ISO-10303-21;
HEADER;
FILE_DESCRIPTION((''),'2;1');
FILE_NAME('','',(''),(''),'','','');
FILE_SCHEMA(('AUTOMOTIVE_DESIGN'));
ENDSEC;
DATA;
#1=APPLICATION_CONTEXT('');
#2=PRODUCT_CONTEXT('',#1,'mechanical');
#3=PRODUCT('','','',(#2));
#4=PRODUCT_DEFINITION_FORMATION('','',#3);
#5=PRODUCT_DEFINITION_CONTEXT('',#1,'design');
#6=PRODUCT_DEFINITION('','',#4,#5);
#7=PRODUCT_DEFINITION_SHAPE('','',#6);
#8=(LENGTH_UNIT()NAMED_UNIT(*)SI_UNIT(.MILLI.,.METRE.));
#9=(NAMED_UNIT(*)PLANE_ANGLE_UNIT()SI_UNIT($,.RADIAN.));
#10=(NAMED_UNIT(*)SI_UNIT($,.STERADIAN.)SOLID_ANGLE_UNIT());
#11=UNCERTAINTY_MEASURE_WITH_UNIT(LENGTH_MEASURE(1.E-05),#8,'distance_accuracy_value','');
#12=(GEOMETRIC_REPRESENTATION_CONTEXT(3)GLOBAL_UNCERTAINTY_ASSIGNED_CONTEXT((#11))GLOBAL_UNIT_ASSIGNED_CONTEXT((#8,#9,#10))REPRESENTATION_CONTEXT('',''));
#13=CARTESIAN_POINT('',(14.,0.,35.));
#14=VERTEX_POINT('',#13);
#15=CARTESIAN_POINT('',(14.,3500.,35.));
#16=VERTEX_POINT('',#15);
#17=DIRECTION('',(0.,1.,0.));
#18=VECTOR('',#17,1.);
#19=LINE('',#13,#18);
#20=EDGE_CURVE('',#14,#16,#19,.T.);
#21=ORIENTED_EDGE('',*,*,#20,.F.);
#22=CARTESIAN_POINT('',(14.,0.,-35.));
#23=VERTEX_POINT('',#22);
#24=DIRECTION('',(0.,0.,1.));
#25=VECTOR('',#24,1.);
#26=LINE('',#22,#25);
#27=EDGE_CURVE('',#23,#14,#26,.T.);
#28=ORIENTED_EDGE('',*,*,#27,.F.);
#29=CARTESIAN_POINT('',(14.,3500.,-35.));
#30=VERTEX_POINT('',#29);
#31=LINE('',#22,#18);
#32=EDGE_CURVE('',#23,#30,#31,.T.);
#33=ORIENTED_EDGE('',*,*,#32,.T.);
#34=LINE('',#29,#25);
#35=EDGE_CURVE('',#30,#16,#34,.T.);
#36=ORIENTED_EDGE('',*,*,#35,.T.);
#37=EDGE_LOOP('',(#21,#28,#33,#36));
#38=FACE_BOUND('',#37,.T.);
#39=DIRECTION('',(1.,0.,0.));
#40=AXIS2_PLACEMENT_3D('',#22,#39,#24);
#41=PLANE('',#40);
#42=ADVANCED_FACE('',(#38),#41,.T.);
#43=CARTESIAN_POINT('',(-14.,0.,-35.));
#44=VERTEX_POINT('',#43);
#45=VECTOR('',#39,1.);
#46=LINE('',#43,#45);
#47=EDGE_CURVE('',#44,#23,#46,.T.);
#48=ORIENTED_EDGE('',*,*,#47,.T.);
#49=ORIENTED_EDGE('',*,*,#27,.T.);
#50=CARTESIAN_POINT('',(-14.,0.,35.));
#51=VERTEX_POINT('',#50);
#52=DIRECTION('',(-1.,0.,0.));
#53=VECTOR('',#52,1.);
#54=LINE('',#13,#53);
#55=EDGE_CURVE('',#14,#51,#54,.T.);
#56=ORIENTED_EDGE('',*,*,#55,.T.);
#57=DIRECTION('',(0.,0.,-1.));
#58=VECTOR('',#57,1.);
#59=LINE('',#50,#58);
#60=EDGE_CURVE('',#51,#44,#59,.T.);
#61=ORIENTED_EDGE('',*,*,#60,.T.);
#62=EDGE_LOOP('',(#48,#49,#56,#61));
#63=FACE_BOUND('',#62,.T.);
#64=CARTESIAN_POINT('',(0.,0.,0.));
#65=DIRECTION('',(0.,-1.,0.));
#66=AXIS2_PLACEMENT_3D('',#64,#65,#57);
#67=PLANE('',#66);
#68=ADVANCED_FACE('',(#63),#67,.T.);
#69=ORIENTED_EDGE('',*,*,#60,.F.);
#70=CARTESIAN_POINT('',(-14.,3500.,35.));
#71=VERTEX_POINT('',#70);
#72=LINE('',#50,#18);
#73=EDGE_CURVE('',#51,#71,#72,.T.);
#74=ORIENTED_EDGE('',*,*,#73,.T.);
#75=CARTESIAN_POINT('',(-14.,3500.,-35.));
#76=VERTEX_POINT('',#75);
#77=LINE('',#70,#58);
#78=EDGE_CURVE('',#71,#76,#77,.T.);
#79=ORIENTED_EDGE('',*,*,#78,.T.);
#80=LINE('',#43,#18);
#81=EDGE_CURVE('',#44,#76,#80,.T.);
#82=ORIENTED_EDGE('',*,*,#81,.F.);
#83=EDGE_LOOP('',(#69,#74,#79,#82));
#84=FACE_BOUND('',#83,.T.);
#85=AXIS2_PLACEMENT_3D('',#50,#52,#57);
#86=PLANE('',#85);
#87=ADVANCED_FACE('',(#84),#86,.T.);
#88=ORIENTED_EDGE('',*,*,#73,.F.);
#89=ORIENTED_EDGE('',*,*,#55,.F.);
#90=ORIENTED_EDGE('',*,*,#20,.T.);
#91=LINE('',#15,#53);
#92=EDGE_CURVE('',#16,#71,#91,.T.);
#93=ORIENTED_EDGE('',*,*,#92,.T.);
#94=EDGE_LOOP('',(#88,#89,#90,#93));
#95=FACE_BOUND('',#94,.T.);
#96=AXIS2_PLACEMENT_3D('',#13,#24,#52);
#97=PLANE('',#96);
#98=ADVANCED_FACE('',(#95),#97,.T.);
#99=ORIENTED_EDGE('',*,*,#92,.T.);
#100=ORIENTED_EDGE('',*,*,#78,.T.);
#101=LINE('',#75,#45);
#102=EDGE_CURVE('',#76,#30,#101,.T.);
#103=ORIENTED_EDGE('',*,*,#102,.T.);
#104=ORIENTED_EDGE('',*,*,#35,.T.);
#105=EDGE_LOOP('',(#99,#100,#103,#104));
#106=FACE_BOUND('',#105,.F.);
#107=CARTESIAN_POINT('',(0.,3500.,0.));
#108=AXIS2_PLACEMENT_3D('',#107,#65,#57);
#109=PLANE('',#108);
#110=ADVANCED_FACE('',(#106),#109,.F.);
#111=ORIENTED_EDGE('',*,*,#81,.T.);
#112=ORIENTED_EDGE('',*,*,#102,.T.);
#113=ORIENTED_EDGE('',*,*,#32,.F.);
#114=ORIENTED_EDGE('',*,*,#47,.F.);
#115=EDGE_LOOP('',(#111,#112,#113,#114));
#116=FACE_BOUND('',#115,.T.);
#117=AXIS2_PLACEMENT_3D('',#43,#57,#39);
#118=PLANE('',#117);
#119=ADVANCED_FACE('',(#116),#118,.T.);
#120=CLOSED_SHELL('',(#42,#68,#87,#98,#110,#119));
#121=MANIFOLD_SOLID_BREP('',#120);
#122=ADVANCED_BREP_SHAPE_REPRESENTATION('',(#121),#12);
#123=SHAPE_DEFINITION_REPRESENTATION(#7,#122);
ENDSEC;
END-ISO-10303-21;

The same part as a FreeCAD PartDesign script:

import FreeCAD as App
import Part
import Sketcher

V = App.Vector
Q = App.Units.Quantity

doc = App.newDocument("Part")
body = doc.addObject("PartDesign::Body", "Body")

# Sketch on XZ plane
sketch1 = doc.addObject("Sketcher::SketchObject", "Sketch")
body.addObject(sketch1)
sketch1.AttachmentSupport = (doc.XZ_Plane, [""])
sketch1.MapMode = "FlatFace"
sketch1.addGeometry([
    Part.LineSegment(V(-14, 35, 0), V(-14, -35, 0)),
    Part.LineSegment(V(-14, -35, 0), V(14, -35, 0)),
    Part.LineSegment(V(14, -35, 0), V(14, 35, 0)),
    Part.LineSegment(V(14, 35, 0), V(-14, 35, 0)),
], False)
sketch1.addConstraint([
    Sketcher.Constraint("Coincident", 0, 2, 1, 1),
    Sketcher.Constraint("Coincident", 1, 2, 2, 1),
    Sketcher.Constraint("Coincident", 2, 2, 3, 1),
    Sketcher.Constraint("Coincident", 3, 2, 0, 1),
    Sketcher.Constraint("Vertical", 0),
    Sketcher.Constraint("Horizontal", 1),
    Sketcher.Constraint("Vertical", 2),
    Sketcher.Constraint("Horizontal", 3),
    Sketcher.Constraint("Symmetric", 0, 2, 2, 2, -1, 1),
    Sketcher.Constraint("DistanceX", 1, 1, 1, 2, Q("28 mm")),
    Sketcher.Constraint("DistanceY", 0, 2, 0, 1, Q("70 mm")),
])
pad1 = doc.addObject("PartDesign::Pad", "Pad")
body.addObject(pad1)
pad1.Profile = sketch1
pad1.Length = 3500
pad1.Reversed = True

doc.recompute()
